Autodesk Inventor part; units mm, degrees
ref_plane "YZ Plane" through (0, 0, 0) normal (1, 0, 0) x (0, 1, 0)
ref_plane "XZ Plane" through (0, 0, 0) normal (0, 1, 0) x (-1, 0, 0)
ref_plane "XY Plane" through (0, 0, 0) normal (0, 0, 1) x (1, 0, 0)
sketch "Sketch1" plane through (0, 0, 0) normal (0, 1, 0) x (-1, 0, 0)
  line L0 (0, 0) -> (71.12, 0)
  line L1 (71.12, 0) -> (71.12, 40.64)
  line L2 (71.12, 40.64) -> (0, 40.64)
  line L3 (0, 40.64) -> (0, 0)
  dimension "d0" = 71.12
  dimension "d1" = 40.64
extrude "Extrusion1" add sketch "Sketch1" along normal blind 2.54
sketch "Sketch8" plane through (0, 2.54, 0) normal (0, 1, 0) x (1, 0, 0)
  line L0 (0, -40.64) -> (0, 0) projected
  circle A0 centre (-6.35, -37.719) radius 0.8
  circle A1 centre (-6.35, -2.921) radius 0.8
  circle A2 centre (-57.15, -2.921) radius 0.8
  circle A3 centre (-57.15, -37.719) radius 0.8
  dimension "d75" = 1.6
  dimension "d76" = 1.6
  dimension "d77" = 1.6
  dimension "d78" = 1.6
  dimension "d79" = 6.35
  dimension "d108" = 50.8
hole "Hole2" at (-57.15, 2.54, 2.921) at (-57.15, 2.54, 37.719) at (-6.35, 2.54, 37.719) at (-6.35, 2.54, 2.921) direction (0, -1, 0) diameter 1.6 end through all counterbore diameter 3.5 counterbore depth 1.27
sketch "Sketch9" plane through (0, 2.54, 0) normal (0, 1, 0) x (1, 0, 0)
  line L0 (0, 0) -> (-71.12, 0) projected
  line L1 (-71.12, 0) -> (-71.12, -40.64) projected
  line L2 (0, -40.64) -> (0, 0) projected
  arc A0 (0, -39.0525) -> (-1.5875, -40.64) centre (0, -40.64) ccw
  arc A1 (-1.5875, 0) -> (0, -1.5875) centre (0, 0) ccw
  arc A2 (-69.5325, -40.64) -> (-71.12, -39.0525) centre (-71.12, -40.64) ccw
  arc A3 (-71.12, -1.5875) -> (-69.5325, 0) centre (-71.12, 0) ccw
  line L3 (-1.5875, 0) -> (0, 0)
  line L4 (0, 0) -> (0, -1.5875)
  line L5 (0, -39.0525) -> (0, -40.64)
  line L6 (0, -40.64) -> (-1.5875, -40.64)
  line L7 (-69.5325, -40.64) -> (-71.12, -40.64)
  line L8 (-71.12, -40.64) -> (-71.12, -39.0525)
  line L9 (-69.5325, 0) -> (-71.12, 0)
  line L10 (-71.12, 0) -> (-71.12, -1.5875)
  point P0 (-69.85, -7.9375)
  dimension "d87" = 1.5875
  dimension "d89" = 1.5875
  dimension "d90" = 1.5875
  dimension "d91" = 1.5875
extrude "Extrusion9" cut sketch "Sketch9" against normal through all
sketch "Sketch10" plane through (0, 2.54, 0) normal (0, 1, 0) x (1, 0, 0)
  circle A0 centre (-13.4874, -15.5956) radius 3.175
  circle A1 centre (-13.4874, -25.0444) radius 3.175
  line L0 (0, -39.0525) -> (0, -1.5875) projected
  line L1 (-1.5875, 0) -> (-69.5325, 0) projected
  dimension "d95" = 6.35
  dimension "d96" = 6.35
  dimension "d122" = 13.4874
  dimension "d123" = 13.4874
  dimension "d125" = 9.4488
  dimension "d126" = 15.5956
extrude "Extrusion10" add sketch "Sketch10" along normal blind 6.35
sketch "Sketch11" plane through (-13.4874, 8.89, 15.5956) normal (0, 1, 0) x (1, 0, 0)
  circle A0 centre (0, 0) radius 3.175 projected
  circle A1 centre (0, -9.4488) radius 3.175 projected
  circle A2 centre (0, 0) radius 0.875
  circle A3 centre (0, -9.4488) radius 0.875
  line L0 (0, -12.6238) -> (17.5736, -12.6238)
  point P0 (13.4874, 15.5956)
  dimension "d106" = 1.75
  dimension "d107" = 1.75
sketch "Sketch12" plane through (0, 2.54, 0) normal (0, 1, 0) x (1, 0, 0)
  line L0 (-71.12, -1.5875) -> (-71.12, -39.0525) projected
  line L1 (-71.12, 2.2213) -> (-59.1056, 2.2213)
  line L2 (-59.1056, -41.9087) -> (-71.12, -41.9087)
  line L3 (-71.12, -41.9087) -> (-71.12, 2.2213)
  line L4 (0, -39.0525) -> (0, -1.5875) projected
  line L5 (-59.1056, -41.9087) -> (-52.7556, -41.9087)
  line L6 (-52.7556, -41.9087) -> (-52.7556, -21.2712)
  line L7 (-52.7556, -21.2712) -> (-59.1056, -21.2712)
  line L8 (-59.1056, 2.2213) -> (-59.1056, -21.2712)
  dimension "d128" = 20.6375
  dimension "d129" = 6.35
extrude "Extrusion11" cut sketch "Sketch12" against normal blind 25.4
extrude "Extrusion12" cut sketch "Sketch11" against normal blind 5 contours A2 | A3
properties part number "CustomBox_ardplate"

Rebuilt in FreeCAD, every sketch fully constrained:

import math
import FreeCAD as App
import Part
import Sketcher
from FreeCAD import Vector
Q = App.Units.Quantity

doc = App.newDocument("Part")
params = doc.addObject("Spreadsheet::Sheet", "Params")
for row, (alias, value) in enumerate([
    ("sketch1_width", "2.8 in"),
    ("sketch1_height", "1.6 in"),
    ("pad1_length", "0.1 in"),
    ("sketch2_diameter", "0.063 in"),
    ("hole_diameter", "0.0629921 in"),
    ("hole_cbore_diameter", "0.1377953 in"),
    ("hole_cbore_depth", "0.05 in"),
    ("sketch3_radius", "0.0625 in"),
    ("sketch4_diameter", "0.25 in"),
    ("pad2_length", "0.25 in"),
    ("sketch5_width", "0.25 in"),
    ("sketch5_height", "0.8125 in"),
    ("sketch5_width2", "0.723 in"),
    ("pocket2_length", "1 in"),
    ("pocket3_length", "5 mm"),
], start=1):
    params.set(f"A{row}", alias)
    params.set(f"B{row}", "=" + value)
    params.setAlias(f"B{row}", alias)

body = doc.addObject("PartDesign::Body", "Body")

# Sketch on XZ plane
sketch1 = body.newObject("Sketcher::SketchObject", "Sketch")
sketch1.AttachmentSupport = (doc.getObject("XZ_Plane"), [""])
sketch1.MapMode = "FlatFace"
sketch1.addGeometry([
    Part.LineSegment(Vector(0, 40.64, 0), Vector(0, 0, 0)),
    Part.LineSegment(Vector(0, 0, 0), Vector(-71.12, 0, 0)),
    Part.LineSegment(Vector(-71.12, 0, 0), Vector(-71.12, 40.64, 0)),
    Part.LineSegment(Vector(-71.12, 40.64, 0), Vector(0, 40.64, 0)),
], False)
sketch1.addConstraint([
    Sketcher.Constraint("Coincident", 0, 2, 1, 1),
    Sketcher.Constraint("Coincident", 1, 2, 2, 1),
    Sketcher.Constraint("Coincident", 2, 2, 3, 1),
    Sketcher.Constraint("Coincident", 3, 2, 0, 1),
    Sketcher.Constraint("Vertical", 0),
    Sketcher.Constraint("Horizontal", 1),
    Sketcher.Constraint("Vertical", 2),
    Sketcher.Constraint("Horizontal", 3),
    Sketcher.Constraint("Coincident", 0, 2, -1, 1),
    Sketcher.Constraint("DistanceX", 1, 2, 1, 1, Q("2.8 in")),
    Sketcher.Constraint("DistanceY", 0, 2, 0, 1, Q("1.6 in")),
])
sketch1.setExpression("Constraints[9]", "Params.sketch1_width")
sketch1.setExpression("Constraints[10]", "Params.sketch1_height")
pad1 = body.newObject("PartDesign::Pad", "Pad")
pad1.Profile = sketch1
pad1.setExpression("Length", "Params.pad1_length")
pad1.Reversed = True

# Sketch on XZ plane
sketch2 = body.newObject("Sketcher::SketchObject", "Sketch001")
sketch2.AttachmentSupport = (doc.getObject("XZ_Plane"), [""])
sketch2.MapMode = "FlatFace"
sketch2.AttachmentOffset = App.Placement(Vector(0, 0, -0.1 * 25.4), App.Rotation())
sketch2.addGeometry([
    Part.Circle(Vector(-57.15, 2.921, 0), Vector(0, 0, 1), 0.8),
    Part.Circle(Vector(-57.15, 37.719, 0), Vector(0, 0, 1), 0.8),
    Part.Circle(Vector(-6.35, 37.719, 0), Vector(0, 0, 1), 0.8),
    Part.Circle(Vector(-6.35, 2.921, 0), Vector(0, 0, 1), 0.8),
], False)
sketch2.addConstraint([
    Sketcher.Constraint("Equal", 0, 1),
    Sketcher.Constraint("Equal", 1, 2),
    Sketcher.Constraint("Equal", 2, 3),
    Sketcher.Constraint("Horizontal", 1, 3, 2, 3),
    Sketcher.Constraint("Horizontal", 0, 3, 3, 3),
    Sketcher.Constraint("Vertical", 0, 3, 1, 3),
    Sketcher.Constraint("Vertical", 2, 3, 3, 3),
    Sketcher.Constraint("Diameter", 0, Q("0.063 in")),
    Sketcher.Constraint("DistanceX", 1, 3, 2, 3, Q("2 in")),
    Sketcher.Constraint("DistanceX", 0, 3, -1, 1, Q("2.25 in")),
    Sketcher.Constraint("DistanceY", 0, 3, 1, 3, Q("1.37 in")),
    Sketcher.Constraint("DistanceY", -1, 1, 0, 3, Q("0.115 in")),
])
sketch2.setExpression("Constraints[7]", "Params.sketch2_diameter")
doc.recompute()
hole = body.newObject("PartDesign::Hole", "Hole")
hole.Profile = sketch2
hole.ThreadType = "None"
hole.setExpression("Diameter", "Params.hole_diameter")
hole.DepthType = "ThroughAll"
hole.HoleCutType = "Counterbore"
hole.setExpression("HoleCutDiameter", "Params.hole_cbore_diameter")
hole.setExpression("HoleCutDepth", "Params.hole_cbore_depth")
hole.Reversed = True

# Sketch on XZ plane
sketch3 = body.newObject("Sketcher::SketchObject", "Sketch002")
sketch3.AttachmentSupport = (doc.getObject("XZ_Plane"), [""])
sketch3.MapMode = "FlatFace"
sketch3.AttachmentOffset = App.Placement(Vector(0, 0, -0.1 * 25.4), App.Rotation())
sketch3.addGeometry([
    Part.LineSegment(Vector(0, 1.5875, 0), Vector(0, 0, 0)),  # 0
    Part.LineSegment(Vector(0, 0, 0), Vector(-1.5875, 0, 0)),  # 1
    Part.ArcOfCircle(Part.Circle(Vector(0, 0, 0), Vector(0, 0, 1), 1.5875), math.radians(90), math.radians(180)),  # 2
    Part.LineSegment(Vector(0, 40.64, 0), Vector(0, 39.0525, 0)),  # 3
    Part.ArcOfCircle(Part.Circle(Vector(0, 40.64, 0), Vector(0, 0, 1), 1.5875), math.radians(180), math.radians(270)),  # 4
    Part.LineSegment(Vector(-1.5875, 40.64, 0), Vector(0, 40.64, 0)),  # 5
    Part.ArcOfCircle(Part.Circle(Vector(-71.12, 40.64, 0), Vector(0, 0, 1), 1.5875), math.radians(-90), math.radians(0)),  # 6
    Part.LineSegment(Vector(-71.12, 39.0525, 0), Vector(-71.12, 40.64, 0)),  # 7
    Part.LineSegment(Vector(-71.12, 40.64, 0), Vector(-69.5325, 40.64, 0)),  # 8
    Part.ArcOfCircle(Part.Circle(Vector(-71.12, 0, 0), Vector(0, 0, 1), 1.5875), math.radians(0), math.radians(90)),  # 9
    Part.LineSegment(Vector(-69.5325, 0, 0), Vector(-71.12, 0, 0)),  # 10
    Part.LineSegment(Vector(-71.12, 0, 0), Vector(-71.12, 1.5875, 0)),  # 11
], False)
sketch3.addConstraint([
    Sketcher.Constraint("Coincident", 0, 2, 1, 1),
    Sketcher.Constraint("Coincident", 1, 2, 2, 2),
    Sketcher.Constraint("Coincident", 2, 1, 0, 1),
    Sketcher.Constraint("Coincident", 3, 2, 4, 2),
    Sketcher.Constraint("Coincident", 4, 1, 5, 1),
    Sketcher.Constraint("Coincident", 5, 2, 3, 1),
    Sketcher.Constraint("Coincident", 6, 1, 7, 1),
    Sketcher.Constraint("Coincident", 7, 2, 8, 1),
    Sketcher.Constraint("Coincident", 8, 2, 6, 2),
    Sketcher.Constraint("Coincident", 9, 1, 10, 1),
    Sketcher.Constraint("Coincident", 10, 2, 11, 1),
    Sketcher.Constraint("Coincident", 11, 2, 9, 2),
    Sketcher.Constraint("Vertical", 0),
    Sketcher.Constraint("Horizontal", 1),
    Sketcher.Constraint("Vertical", 3),
    Sketcher.Constraint("Horizontal", 5),
    Sketcher.Constraint("Vertical", 7),
    Sketcher.Constraint("Horizontal", 8),
    Sketcher.Constraint("Horizontal", 10),
    Sketcher.Constraint("Vertical", 11),
    Sketcher.Constraint("Coincident", 2, 3, -1, 1),
    Sketcher.Constraint("Coincident", 0, 2, -1, 1),
    Sketcher.Constraint("Coincident", 5, 2, 4, 3),
    Sketcher.Constraint("Coincident", 7, 2, 6, 3),
    Sketcher.Constraint("Coincident", 10, 2, 9, 3),
    Sketcher.Constraint("Equal", 2, 4),
    Sketcher.Constraint("Equal", 4, 6),
    Sketcher.Constraint("Equal", 6, 9),
    Sketcher.Constraint("PointOnObject", 4, 3, -2),
    Sketcher.Constraint("PointOnObject", 9, 3, -1),
    Sketcher.Constraint("Horizontal", 4, 3, 6, 3),
    Sketcher.Constraint("Vertical", 6, 3, 9, 3),
    Sketcher.Constraint("Radius", 2, Q("0.0625 in")),
    Sketcher.Constraint("DistanceY", -1, 1, 4, 3, Q("1.6 in")),
    Sketcher.Constraint("DistanceX", 6, 3, -1, 1, Q("2.8 in")),
])
sketch3.setExpression("Constraints[32]", "Params.sketch3_radius")
pocket1 = body.newObject("PartDesign::Pocket", "Pocket")
pocket1.Profile = sketch3
pocket1.Type = "ThroughAll"
pocket1.Reversed = True

# Sketch on XZ plane
sketch4 = body.newObject("Sketcher::SketchObject", "Sketch003")
sketch4.AttachmentSupport = (doc.getObject("XZ_Plane"), [""])
sketch4.MapMode = "FlatFace"
sketch4.AttachmentOffset = App.Placement(Vector(0, 0, -0.1 * 25.4), App.Rotation())
sketch4.addGeometry([
    Part.Circle(Vector(-13.4874, 15.5956, 0), Vector(0, 0, 1), 3.175),
    Part.Circle(Vector(-13.4874, 25.0444, 0), Vector(0, 0, 1), 3.175),
], False)
sketch4.addConstraint([
    Sketcher.Constraint("Equal", 0, 1),
    Sketcher.Constraint("Vertical", 0, 3, 1, 3),
    Sketcher.Constraint("Diameter", 0, Q("0.25 in")),
    Sketcher.Constraint("DistanceX", 0, 3, -1, 1, Q("0.531 in")),
    Sketcher.Constraint("DistanceY", -1, 1, 0, 3, Q("0.614 in")),
    Sketcher.Constraint("DistanceY", 0, 3, 1, 3, Q("0.372 in")),
])
sketch4.setExpression("Constraints[2]", "Params.sketch4_diameter")
pad2 = body.newObject("PartDesign::Pad", "Pad001")
pad2.Profile = sketch4
pad2.setExpression("Length", "Params.pad2_length")
pad2.Reversed = True

# Sketch on XZ plane
sketch5 = body.newObject("Sketcher::SketchObject", "Sketch004")
sketch5.AttachmentSupport = (doc.getObject("XZ_Plane"), [""])
sketch5.MapMode = "FlatFace"
sketch5.AttachmentOffset = App.Placement(Vector(0, 0, -0.1 * 25.4), App.Rotation())
sketch5.addGeometry([
    Part.LineSegment(Vector(-71.12, -2.2213, 0), Vector(-71.12, 41.9087, 0)),  # 0
    Part.LineSegment(Vector(-71.12, 41.9087, 0), Vector(-52.7556, 41.9087, 0)),  # 1
    Part.LineSegment(Vector(-52.7556, 41.9087, 0), Vector(-52.7556, 21.2712, 0)),  # 2
    Part.LineSegment(Vector(-52.7556, 21.2712, 0), Vector(-59.1056, 21.2712, 0)),  # 3
    Part.LineSegment(Vector(-59.1056, 21.2712, 0), Vector(-59.1056, -2.2213, 0)),  # 4
    Part.LineSegment(Vector(-59.1056, -2.2213, 0), Vector(-71.12, -2.2213, 0)),  # 5
], False)
sketch5.addConstraint([
    Sketcher.Constraint("Coincident", 0, 2, 1, 1),
    Sketcher.Constraint("Coincident", 1, 2, 2, 1),
    Sketcher.Constraint("Coincident", 2, 2, 3, 1),
    Sketcher.Constraint("Coincident", 3, 2, 4, 1),
    Sketcher.Constraint("Coincident", 4, 2, 5, 1),
    Sketcher.Constraint("Coincident", 5, 2, 0, 1),
    Sketcher.Constraint("Vertical", 0),
    Sketcher.Constraint("Horizontal", 1),
    Sketcher.Constraint("Vertical", 2),
    Sketcher.Constraint("Horizontal", 3),
    Sketcher.Constraint("Vertical", 4),
    Sketcher.Constraint("Horizontal", 5),
    Sketcher.Constraint("DistanceX", 3, 2, 3, 1, Q("0.25 in")),
    Sketcher.Constraint("DistanceY", 2, 2, 2, 1, Q("0.8125 in")),
    Sketcher.Constraint("DistanceX", 0, 2, -1, 1, Q("2.8 in")),
    Sketcher.Constraint("DistanceX", 1, 1, 1, 2, Q("0.723 in")),
    Sketcher.Constraint("DistanceY", 0, 1, 0, 2, Q("1.7374 in")),
    Sketcher.Constraint("DistanceY", -1, 1, 0, 2, 41.9087),
])
sketch5.setExpression("Constraints[12]", "Params.sketch5_width")
sketch5.setExpression("Constraints[13]", "Params.sketch5_height")
sketch5.setExpression("Constraints[15]", "Params.sketch5_width2")
pocket2 = body.newObject("PartDesign::Pocket", "Pocket001")
pocket2.Profile = sketch5
pocket2.setExpression("Length", "Params.pocket2_length")
pocket2.Reversed = True

# Sketch on XZ plane
sketch6 = body.newObject("Sketcher::SketchObject", "Sketch005")
sketch6.AttachmentSupport = (doc.getObject("XZ_Plane"), [""])
sketch6.MapMode = "FlatFace"
sketch6.AttachmentOffset = App.Placement(Vector(0, 0, -0.35 * 25.4), App.Rotation())
sketch6.addGeometry([
    Part.Circle(Vector(-13.4874, 15.5956, 0), Vector(0, 0, 1), 0.875),
    Part.Circle(Vector(-13.4874, 25.0444, 0), Vector(0, 0, 1), 0.875),
], False)
sketch6.addConstraint([
    Sketcher.Constraint("Equal", 0, 1),
    Sketcher.Constraint("Vertical", 0, 3, 1, 3),
    Sketcher.Constraint("Diameter", 0, Q("0.0689 in")),
    Sketcher.Constraint("DistanceX", 0, 3, -1, 1, Q("0.531 in")),
    Sketcher.Constraint("DistanceY", -1, 1, 0, 3, Q("0.614 in")),
    Sketcher.Constraint("DistanceY", -1, 1, 1, 3, Q("0.986 in")),
])
pocket3 = body.newObject("PartDesign::Pocket", "Pocket002")
pocket3.Profile = sketch6
pocket3.setExpression("Length", "Params.pocket3_length")
pocket3.Reversed = True

doc.recompute()
